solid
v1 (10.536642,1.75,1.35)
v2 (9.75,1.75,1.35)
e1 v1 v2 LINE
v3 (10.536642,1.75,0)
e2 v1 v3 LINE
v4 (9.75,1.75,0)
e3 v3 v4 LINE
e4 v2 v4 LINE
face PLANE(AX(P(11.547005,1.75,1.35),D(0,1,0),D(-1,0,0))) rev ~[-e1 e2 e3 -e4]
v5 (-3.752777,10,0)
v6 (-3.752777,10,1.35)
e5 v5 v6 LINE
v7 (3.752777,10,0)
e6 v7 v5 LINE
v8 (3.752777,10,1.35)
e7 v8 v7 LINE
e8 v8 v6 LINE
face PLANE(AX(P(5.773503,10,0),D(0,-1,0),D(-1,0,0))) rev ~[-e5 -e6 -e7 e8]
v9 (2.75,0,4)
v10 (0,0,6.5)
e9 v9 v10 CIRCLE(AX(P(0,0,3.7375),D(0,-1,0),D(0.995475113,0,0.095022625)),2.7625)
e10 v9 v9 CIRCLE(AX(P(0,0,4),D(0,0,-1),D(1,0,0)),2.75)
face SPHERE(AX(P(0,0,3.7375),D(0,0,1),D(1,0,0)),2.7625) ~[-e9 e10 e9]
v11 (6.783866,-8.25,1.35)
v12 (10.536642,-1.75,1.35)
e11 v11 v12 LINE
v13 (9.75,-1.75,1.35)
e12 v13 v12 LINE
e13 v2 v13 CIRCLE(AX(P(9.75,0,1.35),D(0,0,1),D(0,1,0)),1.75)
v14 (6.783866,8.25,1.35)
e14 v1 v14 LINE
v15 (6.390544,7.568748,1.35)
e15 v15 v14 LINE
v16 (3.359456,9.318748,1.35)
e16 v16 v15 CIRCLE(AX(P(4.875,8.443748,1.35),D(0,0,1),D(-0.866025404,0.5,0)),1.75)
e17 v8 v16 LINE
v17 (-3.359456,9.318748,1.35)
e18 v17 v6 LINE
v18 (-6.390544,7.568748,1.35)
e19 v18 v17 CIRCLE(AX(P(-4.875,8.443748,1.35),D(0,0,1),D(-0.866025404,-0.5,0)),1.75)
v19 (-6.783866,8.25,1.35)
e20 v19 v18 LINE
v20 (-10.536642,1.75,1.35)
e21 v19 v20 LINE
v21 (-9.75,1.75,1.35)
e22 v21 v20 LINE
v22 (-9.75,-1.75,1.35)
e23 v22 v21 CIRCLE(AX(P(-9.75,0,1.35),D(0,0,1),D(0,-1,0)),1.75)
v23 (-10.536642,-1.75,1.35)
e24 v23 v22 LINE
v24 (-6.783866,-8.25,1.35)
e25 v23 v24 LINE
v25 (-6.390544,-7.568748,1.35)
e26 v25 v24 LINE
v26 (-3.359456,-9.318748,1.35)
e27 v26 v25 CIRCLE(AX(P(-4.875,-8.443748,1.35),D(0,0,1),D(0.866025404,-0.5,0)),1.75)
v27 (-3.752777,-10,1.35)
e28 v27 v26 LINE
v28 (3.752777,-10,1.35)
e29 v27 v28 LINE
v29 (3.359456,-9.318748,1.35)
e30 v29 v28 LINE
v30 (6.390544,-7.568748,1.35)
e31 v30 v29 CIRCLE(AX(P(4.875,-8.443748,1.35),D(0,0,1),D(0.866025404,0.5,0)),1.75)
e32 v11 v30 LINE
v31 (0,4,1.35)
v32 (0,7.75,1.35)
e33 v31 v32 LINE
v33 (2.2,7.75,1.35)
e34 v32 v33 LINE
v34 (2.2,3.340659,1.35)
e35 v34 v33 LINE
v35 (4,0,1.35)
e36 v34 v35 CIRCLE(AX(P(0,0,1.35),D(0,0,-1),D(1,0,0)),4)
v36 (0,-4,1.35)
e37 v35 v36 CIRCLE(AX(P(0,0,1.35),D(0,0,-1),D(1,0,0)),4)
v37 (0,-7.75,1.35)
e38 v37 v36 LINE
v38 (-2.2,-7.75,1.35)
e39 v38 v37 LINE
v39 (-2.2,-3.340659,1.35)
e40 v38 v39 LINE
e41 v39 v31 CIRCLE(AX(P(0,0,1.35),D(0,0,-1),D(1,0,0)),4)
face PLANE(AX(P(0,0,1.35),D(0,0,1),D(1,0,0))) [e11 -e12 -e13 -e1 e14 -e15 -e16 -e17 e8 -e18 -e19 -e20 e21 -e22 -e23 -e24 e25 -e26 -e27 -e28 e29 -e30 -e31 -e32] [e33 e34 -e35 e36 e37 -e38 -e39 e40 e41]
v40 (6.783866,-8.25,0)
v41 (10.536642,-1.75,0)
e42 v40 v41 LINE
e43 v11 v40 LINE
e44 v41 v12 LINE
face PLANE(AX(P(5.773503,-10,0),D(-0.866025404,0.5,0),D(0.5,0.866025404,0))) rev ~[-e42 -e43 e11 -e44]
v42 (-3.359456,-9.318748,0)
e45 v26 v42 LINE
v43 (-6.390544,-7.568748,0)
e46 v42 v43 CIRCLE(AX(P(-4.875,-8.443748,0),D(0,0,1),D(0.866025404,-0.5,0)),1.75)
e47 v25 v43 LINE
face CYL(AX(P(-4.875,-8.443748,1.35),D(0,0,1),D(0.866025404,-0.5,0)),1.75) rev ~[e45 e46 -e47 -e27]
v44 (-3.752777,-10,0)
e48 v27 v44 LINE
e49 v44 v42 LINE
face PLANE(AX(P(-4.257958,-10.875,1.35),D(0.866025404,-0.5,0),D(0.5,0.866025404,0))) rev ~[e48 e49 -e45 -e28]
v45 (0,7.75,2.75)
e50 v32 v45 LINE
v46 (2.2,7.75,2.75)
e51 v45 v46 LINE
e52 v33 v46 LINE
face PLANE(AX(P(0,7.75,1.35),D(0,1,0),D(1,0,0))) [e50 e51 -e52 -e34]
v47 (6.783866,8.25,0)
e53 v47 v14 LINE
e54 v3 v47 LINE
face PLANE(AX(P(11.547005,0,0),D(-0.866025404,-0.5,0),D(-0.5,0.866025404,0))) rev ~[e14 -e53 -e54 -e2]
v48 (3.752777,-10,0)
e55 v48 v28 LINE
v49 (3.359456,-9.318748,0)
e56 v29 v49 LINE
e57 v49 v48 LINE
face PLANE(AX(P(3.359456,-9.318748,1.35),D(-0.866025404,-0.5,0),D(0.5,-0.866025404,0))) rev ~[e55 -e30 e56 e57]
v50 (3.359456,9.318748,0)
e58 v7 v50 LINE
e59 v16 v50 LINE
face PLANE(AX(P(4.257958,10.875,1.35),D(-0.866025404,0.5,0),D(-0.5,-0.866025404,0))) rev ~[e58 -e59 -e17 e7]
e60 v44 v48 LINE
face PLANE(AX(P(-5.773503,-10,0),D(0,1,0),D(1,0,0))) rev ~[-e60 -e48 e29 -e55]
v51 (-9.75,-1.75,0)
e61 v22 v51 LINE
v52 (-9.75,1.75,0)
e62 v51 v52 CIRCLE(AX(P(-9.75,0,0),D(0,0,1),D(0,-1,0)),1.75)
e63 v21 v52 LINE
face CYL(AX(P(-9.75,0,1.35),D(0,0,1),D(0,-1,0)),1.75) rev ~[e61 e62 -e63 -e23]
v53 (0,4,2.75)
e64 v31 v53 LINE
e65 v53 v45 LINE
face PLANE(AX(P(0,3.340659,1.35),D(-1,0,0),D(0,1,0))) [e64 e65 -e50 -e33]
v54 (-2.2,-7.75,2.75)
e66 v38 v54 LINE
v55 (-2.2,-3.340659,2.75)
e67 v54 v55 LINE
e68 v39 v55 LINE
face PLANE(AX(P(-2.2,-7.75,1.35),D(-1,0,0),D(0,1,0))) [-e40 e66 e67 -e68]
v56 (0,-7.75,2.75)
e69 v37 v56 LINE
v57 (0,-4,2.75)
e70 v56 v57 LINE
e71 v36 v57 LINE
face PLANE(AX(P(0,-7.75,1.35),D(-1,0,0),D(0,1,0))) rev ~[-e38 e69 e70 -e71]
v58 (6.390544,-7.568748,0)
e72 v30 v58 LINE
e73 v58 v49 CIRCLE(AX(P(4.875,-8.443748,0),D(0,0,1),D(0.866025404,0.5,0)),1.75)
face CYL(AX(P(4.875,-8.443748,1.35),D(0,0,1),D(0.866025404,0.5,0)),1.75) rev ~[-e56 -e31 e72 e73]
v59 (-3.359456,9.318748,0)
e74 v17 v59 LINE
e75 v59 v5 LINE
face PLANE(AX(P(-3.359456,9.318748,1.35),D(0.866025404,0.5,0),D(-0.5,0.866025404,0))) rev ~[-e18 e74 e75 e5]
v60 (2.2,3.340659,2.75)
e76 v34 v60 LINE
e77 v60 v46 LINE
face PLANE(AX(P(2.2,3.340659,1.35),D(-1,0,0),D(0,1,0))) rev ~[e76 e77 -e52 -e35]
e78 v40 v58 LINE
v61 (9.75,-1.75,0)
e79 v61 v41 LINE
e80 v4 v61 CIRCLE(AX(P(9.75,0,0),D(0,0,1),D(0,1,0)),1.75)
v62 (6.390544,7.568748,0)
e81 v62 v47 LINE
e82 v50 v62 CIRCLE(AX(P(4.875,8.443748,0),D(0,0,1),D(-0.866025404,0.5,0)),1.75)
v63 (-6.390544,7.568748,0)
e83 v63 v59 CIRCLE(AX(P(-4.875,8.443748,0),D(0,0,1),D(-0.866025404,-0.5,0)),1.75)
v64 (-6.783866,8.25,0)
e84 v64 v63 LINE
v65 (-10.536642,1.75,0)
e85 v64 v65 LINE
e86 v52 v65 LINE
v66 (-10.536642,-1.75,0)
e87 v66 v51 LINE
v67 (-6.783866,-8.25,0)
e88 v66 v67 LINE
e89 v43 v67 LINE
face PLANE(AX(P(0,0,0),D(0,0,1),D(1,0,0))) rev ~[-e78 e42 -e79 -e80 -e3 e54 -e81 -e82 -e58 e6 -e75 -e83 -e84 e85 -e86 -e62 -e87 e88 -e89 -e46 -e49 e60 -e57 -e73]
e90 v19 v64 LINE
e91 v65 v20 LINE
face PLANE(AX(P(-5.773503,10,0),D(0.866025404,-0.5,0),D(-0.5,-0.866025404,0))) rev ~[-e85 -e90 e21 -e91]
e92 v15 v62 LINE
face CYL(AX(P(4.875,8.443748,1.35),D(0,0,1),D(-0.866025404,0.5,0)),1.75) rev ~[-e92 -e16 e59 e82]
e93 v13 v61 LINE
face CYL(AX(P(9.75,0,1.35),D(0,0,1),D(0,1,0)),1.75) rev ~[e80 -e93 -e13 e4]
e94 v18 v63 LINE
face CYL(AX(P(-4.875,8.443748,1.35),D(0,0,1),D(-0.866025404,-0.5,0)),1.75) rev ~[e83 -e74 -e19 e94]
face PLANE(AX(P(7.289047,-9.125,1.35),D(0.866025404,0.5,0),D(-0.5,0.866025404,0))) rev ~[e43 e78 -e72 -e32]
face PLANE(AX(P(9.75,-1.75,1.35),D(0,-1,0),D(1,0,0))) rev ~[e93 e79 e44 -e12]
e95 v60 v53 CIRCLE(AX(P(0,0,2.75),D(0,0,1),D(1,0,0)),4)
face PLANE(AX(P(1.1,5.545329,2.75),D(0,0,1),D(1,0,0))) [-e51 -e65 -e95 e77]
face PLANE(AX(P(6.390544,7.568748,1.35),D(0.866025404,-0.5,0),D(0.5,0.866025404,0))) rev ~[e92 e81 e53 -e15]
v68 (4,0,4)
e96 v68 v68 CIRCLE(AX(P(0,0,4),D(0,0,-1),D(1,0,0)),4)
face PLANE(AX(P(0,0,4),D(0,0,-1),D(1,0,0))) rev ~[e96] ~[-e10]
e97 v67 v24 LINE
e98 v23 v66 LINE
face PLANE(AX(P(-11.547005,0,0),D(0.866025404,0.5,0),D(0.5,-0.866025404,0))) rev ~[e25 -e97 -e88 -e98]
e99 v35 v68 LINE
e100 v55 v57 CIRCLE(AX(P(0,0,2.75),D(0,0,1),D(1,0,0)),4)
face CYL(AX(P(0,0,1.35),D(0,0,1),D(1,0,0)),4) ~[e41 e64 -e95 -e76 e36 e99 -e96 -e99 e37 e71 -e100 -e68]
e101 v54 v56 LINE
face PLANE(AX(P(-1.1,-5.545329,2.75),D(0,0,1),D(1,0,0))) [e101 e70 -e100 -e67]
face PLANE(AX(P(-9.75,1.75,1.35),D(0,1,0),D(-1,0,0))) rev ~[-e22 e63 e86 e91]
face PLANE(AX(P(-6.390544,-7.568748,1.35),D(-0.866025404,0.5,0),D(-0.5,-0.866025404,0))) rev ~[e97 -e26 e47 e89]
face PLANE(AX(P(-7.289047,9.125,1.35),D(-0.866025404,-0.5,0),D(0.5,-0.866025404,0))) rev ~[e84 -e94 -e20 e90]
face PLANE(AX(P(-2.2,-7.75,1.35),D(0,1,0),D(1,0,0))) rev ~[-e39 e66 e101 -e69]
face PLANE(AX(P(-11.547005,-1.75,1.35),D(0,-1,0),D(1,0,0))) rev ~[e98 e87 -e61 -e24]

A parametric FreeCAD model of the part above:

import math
import FreeCAD as App
import Part
import Sketcher
Q = App.Units.Quantity


def add_polygon(sketch, points):
    """Adds a closed chain of lines whose ends are joined by coincident constraints."""
    first, n = sketch.GeometryCount, len(points)
    for a, b in zip(points, points[1:] + points[:1]):
        sketch.addGeometry(Part.LineSegment(App.Vector(*a, 0), App.Vector(*b, 0)), False)
    for i in range(n):
        sketch.addConstraint(Sketcher.Constraint("Coincident", first + i, 2, first + (i + 1) % n, 1))

doc = App.newDocument("Part")
body = doc.addObject("PartDesign::Body", "Body")

# Sketch on XY plane
sketch1 = body.newObject("Sketcher::SketchObject", "Sketch")
sketch1.AttachmentSupport = (doc.getObject("XY_Plane"), [""])
sketch1.MapMode = "FlatFace"
add_polygon(sketch1, [(6, 10), (-6, 10), (-12, 0), (-6, -10), (6, -10), (12, 0)])  # lines 0-5
sketch1.addConstraint([
    Sketcher.Constraint("Horizontal", 0),
    Sketcher.Constraint("Horizontal", 3),
    Sketcher.Constraint("Symmetric", 0, 2, 3, 2, -1, 1),
    Sketcher.Constraint("Symmetric", 1, 2, 4, 2, -1, 1),
    Sketcher.Constraint("PointOnObject", 1, 2, -1),
    Sketcher.Constraint("Parallel", 2, 5),
    Sketcher.Constraint("Vertical", 0, 2, 2, 2),
    Sketcher.Constraint("Angle", 1, Q("-120 deg")),
    Sketcher.Constraint("DistanceY", -1, 1, 0, 2, 10.0),
    Sketcher.Constraint("DistanceX", 0, 2, 0, 1, 11.547005),
])
pad1 = body.newObject("PartDesign::Pad", "Pad")
pad1.Profile = sketch1
pad1.Length = 1.35

# Sketch on XY plane
sketch2 = body.newObject("Sketcher::SketchObject", "Sketch001")
sketch2.AttachmentSupport = (doc.getObject("XY_Plane"), [""])
sketch2.MapMode = "FlatFace"
sketch2.AttachmentOffset = App.Placement(App.Vector(0, 0, 1.35), App.Rotation())
sketch2.addGeometry([
    Part.LineSegment(App.Vector(-9.8, 1.8, 0), App.Vector(-11.5, 1.8, 0)),
    Part.LineSegment(App.Vector(-11.5, 1.8, 0), App.Vector(-11.5, -1.8, 0)),
    Part.LineSegment(App.Vector(-11.5, -1.8, 0), App.Vector(-9.8, -1.8, 0)),
    Part.ArcOfCircle(Part.Circle(App.Vector(-9.8, 0, 0), App.Vector(0, 0, 1), 1.8), math.radians(-90), math.radians(90)),
], False)
sketch2.addConstraint([
    Sketcher.Constraint("Coincident", 0, 2, 1, 1),
    Sketcher.Constraint("Coincident", 1, 2, 2, 1),
    Sketcher.Constraint("Tangent", 2, 2, 3, 1),
    Sketcher.Constraint("Tangent", 3, 2, 0, 1),
    Sketcher.Constraint("Horizontal", 0),
    Sketcher.Constraint("Vertical", 1),
    Sketcher.Constraint("Horizontal", 2),
    Sketcher.Constraint("PointOnObject", 3, 3, -1),
    Sketcher.Constraint("Radius", 3, 1.75),
    Sketcher.Constraint("DistanceX", 3, 3, -1, 1, 9.75),
    Sketcher.Constraint("DistanceX", 0, 2, 0, 1, 1.797005),
])
pocket1 = body.newObject("PartDesign::Pocket", "Pocket")
pocket1.Profile = sketch2
pocket1.Type = "ThroughAll"
doc.recompute()

polarpattern = body.newObject("PartDesign::PolarPattern", "PolarPattern")
polarpattern.Originals = [pocket1]
polarpattern.Axis = (doc.getObject("Z_Axis"), [""])
polarpattern.Angle = 360
polarpattern.Occurrences = 6
body.Tip = polarpattern

# Sketch on XZ plane
sketch3 = body.newObject("Sketcher::SketchObject", "Sketch002")
sketch3.AttachmentSupport = (doc.getObject("XZ_Plane"), [""])
sketch3.MapMode = "FlatFace"
sketch3.addGeometry([
    Part.LineSegment(App.Vector(-4, 1.4, 0), App.Vector(-4, 4, 0)),  # 0
    Part.LineSegment(App.Vector(-4, 4, 0), App.Vector(-2.8, 4, 0)),  # 1
    Part.ArcOfCircle(Part.Circle(App.Vector(0, 3.7, 0), App.Vector(0, 0, 1), 2.8), math.radians(90), math.radians(175)),  # 2
    Part.LineSegment(App.Vector(0, 6.5, 0), App.Vector(0, 1.4, 0)),  # 3
    Part.LineSegment(App.Vector(0, 1.4, 0), App.Vector(-4, 1.4, 0)),  # 4
], False)
sketch3.addConstraint([
    Sketcher.Constraint("Coincident", 0, 2, 1, 1),
    Sketcher.Constraint("Coincident", 1, 2, 2, 2),
    Sketcher.Constraint("Coincident", 2, 1, 3, 1),
    Sketcher.Constraint("Coincident", 3, 2, 4, 1),
    Sketcher.Constraint("Coincident", 4, 2, 0, 1),
    Sketcher.Constraint("Vertical", 0),
    Sketcher.Constraint("Horizontal", 1),
    Sketcher.Constraint("Vertical", 3),
    Sketcher.Constraint("Horizontal", 4),
    Sketcher.Constraint("PointOnObject", 2, 3, -2),
    Sketcher.Constraint("PointOnObject", 2, 1, -2),
    Sketcher.Constraint("DistanceX", 4, 2, 4, 1, 4.0),
    Sketcher.Constraint("DistanceY", -1, 1, 0, 2, 4.0),
    Sketcher.Constraint("DistanceX", 1, 1, 1, 2, 1.25),
    Sketcher.Constraint("DistanceY", 0, 1, 0, 2, 2.65),
    Sketcher.Constraint("DistanceY", 3, 2, 3, 1, 5.15),
])
revolution = body.newObject("PartDesign::Revolution", "Revolution")
revolution.Profile = sketch3
revolution.ReferenceAxis = (sketch3, ["V_Axis"])
revolution.Angle = 360

# Sketch on XY plane
sketch4 = body.newObject("Sketcher::SketchObject", "Sketch003")
sketch4.AttachmentSupport = (doc.getObject("XY_Plane"), [""])
sketch4.MapMode = "FlatFace"
sketch4.AttachmentOffset = App.Placement(App.Vector(0, 0, 1.35), App.Rotation())
add_polygon(sketch4, [(0, 7.8), (0, 3.3), (2.2, 3.3), (2.2, 7.8)])  # lines 0-3
add_polygon(sketch4, [(-2.2, -3.3), (-2.2, -7.8), (0, -7.8), (0, -3.3)])  # lines 4-7
sketch4.addConstraint([
    Sketcher.Constraint("Vertical", 0),
    Sketcher.Constraint("Horizontal", 1),
    Sketcher.Constraint("Vertical", 2),
    Sketcher.Constraint("Horizontal", 3),
    Sketcher.Constraint("Vertical", 4),
    Sketcher.Constraint("Horizontal", 5),
    Sketcher.Constraint("Vertical", 6),
    Sketcher.Constraint("Horizontal", 7),
    Sketcher.Constraint("Symmetric", 2, 2, 4, 2, -1, 1),
    Sketcher.Constraint("Symmetric", 0, 2, 6, 2, -1, 1),
    Sketcher.Constraint("PointOnObject", 0, 2, -2),
    Sketcher.Constraint("DistanceX", 1, 1, 1, 2, 2.2),
    Sketcher.Constraint("DistanceY", 4, 2, 3, 2, 15.5),
    Sketcher.Constraint("DistanceY", 0, 2, 0, 1, 4.409341),
])
pad2 = body.newObject("PartDesign::Pad", "Pad001")
pad2.Profile = sketch4
pad2.Length = 1.4

doc.recompute()
